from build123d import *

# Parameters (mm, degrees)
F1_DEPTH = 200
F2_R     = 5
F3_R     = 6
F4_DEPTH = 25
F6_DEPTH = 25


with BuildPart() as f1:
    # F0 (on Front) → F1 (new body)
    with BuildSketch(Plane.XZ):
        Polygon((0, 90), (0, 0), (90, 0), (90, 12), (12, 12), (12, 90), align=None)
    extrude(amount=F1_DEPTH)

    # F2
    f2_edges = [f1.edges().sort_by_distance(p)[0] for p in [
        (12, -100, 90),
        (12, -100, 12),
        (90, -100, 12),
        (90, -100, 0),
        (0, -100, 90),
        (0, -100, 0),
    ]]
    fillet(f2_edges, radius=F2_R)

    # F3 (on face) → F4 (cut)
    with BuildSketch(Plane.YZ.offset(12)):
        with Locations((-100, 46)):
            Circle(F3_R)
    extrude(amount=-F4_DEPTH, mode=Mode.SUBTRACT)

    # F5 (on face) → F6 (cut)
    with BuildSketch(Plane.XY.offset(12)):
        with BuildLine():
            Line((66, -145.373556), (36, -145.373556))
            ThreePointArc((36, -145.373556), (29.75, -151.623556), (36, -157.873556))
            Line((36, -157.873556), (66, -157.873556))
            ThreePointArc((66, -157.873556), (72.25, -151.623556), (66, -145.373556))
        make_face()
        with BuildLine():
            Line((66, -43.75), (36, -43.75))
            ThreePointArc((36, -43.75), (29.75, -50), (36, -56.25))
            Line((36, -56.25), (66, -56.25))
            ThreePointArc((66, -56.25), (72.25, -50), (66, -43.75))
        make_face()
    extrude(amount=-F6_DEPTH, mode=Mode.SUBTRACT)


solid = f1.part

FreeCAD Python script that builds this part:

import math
import FreeCAD as App
import Part
import Sketcher

V = App.Vector


def edges_at(feature, points):
    """Names of the edges that pass closest to the given points."""
    edges = feature.Shape.Edges
    near = lambda p: min(range(len(edges)), key=lambda i: edges[i].distToShape(Part.Vertex(*p))[0])
    return sorted({f"Edge{near(p) + 1}" for p in points})

doc = App.newDocument("Part")
body = doc.addObject("PartDesign::Body", "Body")

# Sketch on XZ plane
sketch1 = doc.addObject("Sketcher::SketchObject", "Sketch")
body.addObject(sketch1)
sketch1.AttachmentSupport = (doc.XZ_Plane, [""])
sketch1.MapMode = "FlatFace"
sketch1.addGeometry(Part.LineSegment(V(0, 90, 0), V(0, 0, 0)), False)
sketch1.addGeometry(Part.LineSegment(V(0, 0, 0), V(90, 0, 0)), False)
sketch1.addGeometry(Part.LineSegment(V(90, 0, 0), V(90, 12, 0)), False)
sketch1.addGeometry(Part.LineSegment(V(90, 12, 0), V(12, 12, 0)), False)
sketch1.addGeometry(Part.LineSegment(V(12, 12, 0), V(12, 90, 0)), False)
sketch1.addGeometry(Part.LineSegment(V(12, 90, 0), V(0, 90, 0)), False)
sketch1.addConstraint(Sketcher.Constraint("Coincident", 0, 2, 1, 1))
sketch1.addConstraint(Sketcher.Constraint("Coincident", 1, 2, 2, 1))
sketch1.addConstraint(Sketcher.Constraint("Coincident", 2, 2, 3, 1))
sketch1.addConstraint(Sketcher.Constraint("Coincident", 3, 2, 4, 1))
sketch1.addConstraint(Sketcher.Constraint("Coincident", 4, 2, 5, 1))
sketch1.addConstraint(Sketcher.Constraint("Coincident", 5, 2, 0, 1))
sketch1.addConstraint(Sketcher.Constraint("Vertical", 0))
sketch1.addConstraint(Sketcher.Constraint("Horizontal", 1))
sketch1.addConstraint(Sketcher.Constraint("Vertical", 2))
sketch1.addConstraint(Sketcher.Constraint("Horizontal", 3))
sketch1.addConstraint(Sketcher.Constraint("Vertical", 4))
sketch1.addConstraint(Sketcher.Constraint("Horizontal", 5))
sketch1.addConstraint(Sketcher.Constraint("Coincident", 0, 2, -1, 1))
sketch1.addConstraint(Sketcher.Constraint("Equal", 1, 0))
sketch1.addConstraint(Sketcher.Constraint("Equal", 5, 2))
sketch1.addConstraint(Sketcher.Constraint("DistanceX", 1, 1, 1, 2, 90.0))
sketch1.addConstraint(Sketcher.Constraint("DistanceX", 3, 2, 3, 1, 78.0))
pad1 = doc.addObject("PartDesign::Pad", "Pad")
body.addObject(pad1)
pad1.Profile = sketch1
pad1.Length = 200
doc.recompute()

fillet = doc.addObject("PartDesign::Fillet", "Fillet")
body.addObject(fillet)
fillet.Base = (pad1, edges_at(pad1, [
    (12, -100, 90),
    (12, -100, 12),
    (90, -100, 12),
    (90, -100, 0),
    (0, -100, 90),
    (0, -100, 0),
]))
fillet.Radius = 5

# Sketch on YZ plane
sketch2 = doc.addObject("Sketcher::SketchObject", "Sketch001")
body.addObject(sketch2)
sketch2.AttachmentSupport = (doc.YZ_Plane, [""])
sketch2.MapMode = "FlatFace"
sketch2.AttachmentOffset = App.Placement(V(0, 0, 12), App.Rotation())
sketch2.addGeometry(Part.Circle(V(-100, 46, 0), V(0, 0, 1), 6), False)
sketch2.addConstraint(Sketcher.Constraint("Diameter", 0, 12.0))
sketch2.addConstraint(Sketcher.Constraint("DistanceX", 0, 3, -1, 1, 100.0))
sketch2.addConstraint(Sketcher.Constraint("DistanceY", -1, 1, 0, 3, 46.0))
pocket1 = doc.addObject("PartDesign::Pocket", "Pocket")
body.addObject(pocket1)
pocket1.Profile = sketch2
pocket1.Length = 25

# Sketch on XY plane
sketch3 = doc.addObject("Sketcher::SketchObject", "Sketch002")
body.addObject(sketch3)
sketch3.AttachmentSupport = (doc.XY_Plane, [""])
sketch3.MapMode = "FlatFace"
sketch3.AttachmentOffset = App.Placement(V(0, 0, 12), App.Rotation())
sketch3.addGeometry(Part.LineSegment(V(66, -145, 0), V(36, -145, 0)), False)
sketch3.addGeometry(Part.ArcOfCircle(Part.Circle(V(36, -152, 0), V(0, 0, 1), 6), math.radians(90), math.radians(270)), False)
sketch3.addGeometry(Part.LineSegment(V(36, -158, 0), V(66, -158, 0)), False)
sketch3.addGeometry(Part.ArcOfCircle(Part.Circle(V(66, -152, 0), V(0, 0, 1), 6), math.radians(-90), math.radians(90)), False)
sketch3.addGeometry(Part.LineSegment(V(66, -44, 0), V(36, -44, 0)), False)
sketch3.addGeometry(Part.ArcOfCircle(Part.Circle(V(36, -50, 0), V(0, 0, 1), 6), math.radians(90), math.radians(270)), False)
sketch3.addGeometry(Part.LineSegment(V(36, -56, 0), V(66, -56, 0)), False)
sketch3.addGeometry(Part.ArcOfCircle(Part.Circle(V(66, -50, 0), V(0, 0, 1), 6), math.radians(-90), math.radians(90)), False)
sketch3.addConstraint(Sketcher.Constraint("Tangent", 0, 2, 1, 1))
sketch3.addConstraint(Sketcher.Constraint("Tangent", 1, 2, 2, 1))
sketch3.addConstraint(Sketcher.Constraint("Tangent", 2, 2, 3, 1))
sketch3.addConstraint(Sketcher.Constraint("Tangent", 3, 2, 0, 1))
sketch3.addConstraint(Sketcher.Constraint("Tangent", 4, 2, 5, 1))
sketch3.addConstraint(Sketcher.Constraint("Tangent", 5, 2, 6, 1))
sketch3.addConstraint(Sketcher.Constraint("Tangent", 6, 2, 7, 1))
sketch3.addConstraint(Sketcher.Constraint("Tangent", 7, 2, 4, 1))
sketch3.addConstraint(Sketcher.Constraint("Horizontal", 0))
sketch3.addConstraint(Sketcher.Constraint("Horizontal", 2))
sketch3.addConstraint(Sketcher.Constraint("Horizontal", 4))
sketch3.addConstraint(Sketcher.Constraint("Horizontal", 6))
sketch3.addConstraint(Sketcher.Constraint("Equal", 3, 5))
sketch3.addConstraint(Sketcher.Constraint("Vertical", 1, 3, 5, 3))
sketch3.addConstraint(Sketcher.Constraint("Vertical", 3, 3, 7, 3))
sketch3.addConstraint(Sketcher.Constraint("DistanceX", 0, 2, 0, 1, 30.0))
sketch3.addConstraint(Sketcher.Constraint("Radius", 1, 6.25))
sketch3.addConstraint(Sketcher.Constraint("DistanceX", -1, 1, 1, 3, 36.0))
sketch3.addConstraint(Sketcher.Constraint("DistanceY", 5, 3, -1, 1, 50.0))
sketch3.addConstraint(Sketcher.Constraint("DistanceY", 1, 3, -1, 1, 151.623556))
pocket2 = doc.addObject("PartDesign::Pocket", "Pocket001")
body.addObject(pocket2)
pocket2.Profile = sketch3
pocket2.Length = 25

doc.recompute()
